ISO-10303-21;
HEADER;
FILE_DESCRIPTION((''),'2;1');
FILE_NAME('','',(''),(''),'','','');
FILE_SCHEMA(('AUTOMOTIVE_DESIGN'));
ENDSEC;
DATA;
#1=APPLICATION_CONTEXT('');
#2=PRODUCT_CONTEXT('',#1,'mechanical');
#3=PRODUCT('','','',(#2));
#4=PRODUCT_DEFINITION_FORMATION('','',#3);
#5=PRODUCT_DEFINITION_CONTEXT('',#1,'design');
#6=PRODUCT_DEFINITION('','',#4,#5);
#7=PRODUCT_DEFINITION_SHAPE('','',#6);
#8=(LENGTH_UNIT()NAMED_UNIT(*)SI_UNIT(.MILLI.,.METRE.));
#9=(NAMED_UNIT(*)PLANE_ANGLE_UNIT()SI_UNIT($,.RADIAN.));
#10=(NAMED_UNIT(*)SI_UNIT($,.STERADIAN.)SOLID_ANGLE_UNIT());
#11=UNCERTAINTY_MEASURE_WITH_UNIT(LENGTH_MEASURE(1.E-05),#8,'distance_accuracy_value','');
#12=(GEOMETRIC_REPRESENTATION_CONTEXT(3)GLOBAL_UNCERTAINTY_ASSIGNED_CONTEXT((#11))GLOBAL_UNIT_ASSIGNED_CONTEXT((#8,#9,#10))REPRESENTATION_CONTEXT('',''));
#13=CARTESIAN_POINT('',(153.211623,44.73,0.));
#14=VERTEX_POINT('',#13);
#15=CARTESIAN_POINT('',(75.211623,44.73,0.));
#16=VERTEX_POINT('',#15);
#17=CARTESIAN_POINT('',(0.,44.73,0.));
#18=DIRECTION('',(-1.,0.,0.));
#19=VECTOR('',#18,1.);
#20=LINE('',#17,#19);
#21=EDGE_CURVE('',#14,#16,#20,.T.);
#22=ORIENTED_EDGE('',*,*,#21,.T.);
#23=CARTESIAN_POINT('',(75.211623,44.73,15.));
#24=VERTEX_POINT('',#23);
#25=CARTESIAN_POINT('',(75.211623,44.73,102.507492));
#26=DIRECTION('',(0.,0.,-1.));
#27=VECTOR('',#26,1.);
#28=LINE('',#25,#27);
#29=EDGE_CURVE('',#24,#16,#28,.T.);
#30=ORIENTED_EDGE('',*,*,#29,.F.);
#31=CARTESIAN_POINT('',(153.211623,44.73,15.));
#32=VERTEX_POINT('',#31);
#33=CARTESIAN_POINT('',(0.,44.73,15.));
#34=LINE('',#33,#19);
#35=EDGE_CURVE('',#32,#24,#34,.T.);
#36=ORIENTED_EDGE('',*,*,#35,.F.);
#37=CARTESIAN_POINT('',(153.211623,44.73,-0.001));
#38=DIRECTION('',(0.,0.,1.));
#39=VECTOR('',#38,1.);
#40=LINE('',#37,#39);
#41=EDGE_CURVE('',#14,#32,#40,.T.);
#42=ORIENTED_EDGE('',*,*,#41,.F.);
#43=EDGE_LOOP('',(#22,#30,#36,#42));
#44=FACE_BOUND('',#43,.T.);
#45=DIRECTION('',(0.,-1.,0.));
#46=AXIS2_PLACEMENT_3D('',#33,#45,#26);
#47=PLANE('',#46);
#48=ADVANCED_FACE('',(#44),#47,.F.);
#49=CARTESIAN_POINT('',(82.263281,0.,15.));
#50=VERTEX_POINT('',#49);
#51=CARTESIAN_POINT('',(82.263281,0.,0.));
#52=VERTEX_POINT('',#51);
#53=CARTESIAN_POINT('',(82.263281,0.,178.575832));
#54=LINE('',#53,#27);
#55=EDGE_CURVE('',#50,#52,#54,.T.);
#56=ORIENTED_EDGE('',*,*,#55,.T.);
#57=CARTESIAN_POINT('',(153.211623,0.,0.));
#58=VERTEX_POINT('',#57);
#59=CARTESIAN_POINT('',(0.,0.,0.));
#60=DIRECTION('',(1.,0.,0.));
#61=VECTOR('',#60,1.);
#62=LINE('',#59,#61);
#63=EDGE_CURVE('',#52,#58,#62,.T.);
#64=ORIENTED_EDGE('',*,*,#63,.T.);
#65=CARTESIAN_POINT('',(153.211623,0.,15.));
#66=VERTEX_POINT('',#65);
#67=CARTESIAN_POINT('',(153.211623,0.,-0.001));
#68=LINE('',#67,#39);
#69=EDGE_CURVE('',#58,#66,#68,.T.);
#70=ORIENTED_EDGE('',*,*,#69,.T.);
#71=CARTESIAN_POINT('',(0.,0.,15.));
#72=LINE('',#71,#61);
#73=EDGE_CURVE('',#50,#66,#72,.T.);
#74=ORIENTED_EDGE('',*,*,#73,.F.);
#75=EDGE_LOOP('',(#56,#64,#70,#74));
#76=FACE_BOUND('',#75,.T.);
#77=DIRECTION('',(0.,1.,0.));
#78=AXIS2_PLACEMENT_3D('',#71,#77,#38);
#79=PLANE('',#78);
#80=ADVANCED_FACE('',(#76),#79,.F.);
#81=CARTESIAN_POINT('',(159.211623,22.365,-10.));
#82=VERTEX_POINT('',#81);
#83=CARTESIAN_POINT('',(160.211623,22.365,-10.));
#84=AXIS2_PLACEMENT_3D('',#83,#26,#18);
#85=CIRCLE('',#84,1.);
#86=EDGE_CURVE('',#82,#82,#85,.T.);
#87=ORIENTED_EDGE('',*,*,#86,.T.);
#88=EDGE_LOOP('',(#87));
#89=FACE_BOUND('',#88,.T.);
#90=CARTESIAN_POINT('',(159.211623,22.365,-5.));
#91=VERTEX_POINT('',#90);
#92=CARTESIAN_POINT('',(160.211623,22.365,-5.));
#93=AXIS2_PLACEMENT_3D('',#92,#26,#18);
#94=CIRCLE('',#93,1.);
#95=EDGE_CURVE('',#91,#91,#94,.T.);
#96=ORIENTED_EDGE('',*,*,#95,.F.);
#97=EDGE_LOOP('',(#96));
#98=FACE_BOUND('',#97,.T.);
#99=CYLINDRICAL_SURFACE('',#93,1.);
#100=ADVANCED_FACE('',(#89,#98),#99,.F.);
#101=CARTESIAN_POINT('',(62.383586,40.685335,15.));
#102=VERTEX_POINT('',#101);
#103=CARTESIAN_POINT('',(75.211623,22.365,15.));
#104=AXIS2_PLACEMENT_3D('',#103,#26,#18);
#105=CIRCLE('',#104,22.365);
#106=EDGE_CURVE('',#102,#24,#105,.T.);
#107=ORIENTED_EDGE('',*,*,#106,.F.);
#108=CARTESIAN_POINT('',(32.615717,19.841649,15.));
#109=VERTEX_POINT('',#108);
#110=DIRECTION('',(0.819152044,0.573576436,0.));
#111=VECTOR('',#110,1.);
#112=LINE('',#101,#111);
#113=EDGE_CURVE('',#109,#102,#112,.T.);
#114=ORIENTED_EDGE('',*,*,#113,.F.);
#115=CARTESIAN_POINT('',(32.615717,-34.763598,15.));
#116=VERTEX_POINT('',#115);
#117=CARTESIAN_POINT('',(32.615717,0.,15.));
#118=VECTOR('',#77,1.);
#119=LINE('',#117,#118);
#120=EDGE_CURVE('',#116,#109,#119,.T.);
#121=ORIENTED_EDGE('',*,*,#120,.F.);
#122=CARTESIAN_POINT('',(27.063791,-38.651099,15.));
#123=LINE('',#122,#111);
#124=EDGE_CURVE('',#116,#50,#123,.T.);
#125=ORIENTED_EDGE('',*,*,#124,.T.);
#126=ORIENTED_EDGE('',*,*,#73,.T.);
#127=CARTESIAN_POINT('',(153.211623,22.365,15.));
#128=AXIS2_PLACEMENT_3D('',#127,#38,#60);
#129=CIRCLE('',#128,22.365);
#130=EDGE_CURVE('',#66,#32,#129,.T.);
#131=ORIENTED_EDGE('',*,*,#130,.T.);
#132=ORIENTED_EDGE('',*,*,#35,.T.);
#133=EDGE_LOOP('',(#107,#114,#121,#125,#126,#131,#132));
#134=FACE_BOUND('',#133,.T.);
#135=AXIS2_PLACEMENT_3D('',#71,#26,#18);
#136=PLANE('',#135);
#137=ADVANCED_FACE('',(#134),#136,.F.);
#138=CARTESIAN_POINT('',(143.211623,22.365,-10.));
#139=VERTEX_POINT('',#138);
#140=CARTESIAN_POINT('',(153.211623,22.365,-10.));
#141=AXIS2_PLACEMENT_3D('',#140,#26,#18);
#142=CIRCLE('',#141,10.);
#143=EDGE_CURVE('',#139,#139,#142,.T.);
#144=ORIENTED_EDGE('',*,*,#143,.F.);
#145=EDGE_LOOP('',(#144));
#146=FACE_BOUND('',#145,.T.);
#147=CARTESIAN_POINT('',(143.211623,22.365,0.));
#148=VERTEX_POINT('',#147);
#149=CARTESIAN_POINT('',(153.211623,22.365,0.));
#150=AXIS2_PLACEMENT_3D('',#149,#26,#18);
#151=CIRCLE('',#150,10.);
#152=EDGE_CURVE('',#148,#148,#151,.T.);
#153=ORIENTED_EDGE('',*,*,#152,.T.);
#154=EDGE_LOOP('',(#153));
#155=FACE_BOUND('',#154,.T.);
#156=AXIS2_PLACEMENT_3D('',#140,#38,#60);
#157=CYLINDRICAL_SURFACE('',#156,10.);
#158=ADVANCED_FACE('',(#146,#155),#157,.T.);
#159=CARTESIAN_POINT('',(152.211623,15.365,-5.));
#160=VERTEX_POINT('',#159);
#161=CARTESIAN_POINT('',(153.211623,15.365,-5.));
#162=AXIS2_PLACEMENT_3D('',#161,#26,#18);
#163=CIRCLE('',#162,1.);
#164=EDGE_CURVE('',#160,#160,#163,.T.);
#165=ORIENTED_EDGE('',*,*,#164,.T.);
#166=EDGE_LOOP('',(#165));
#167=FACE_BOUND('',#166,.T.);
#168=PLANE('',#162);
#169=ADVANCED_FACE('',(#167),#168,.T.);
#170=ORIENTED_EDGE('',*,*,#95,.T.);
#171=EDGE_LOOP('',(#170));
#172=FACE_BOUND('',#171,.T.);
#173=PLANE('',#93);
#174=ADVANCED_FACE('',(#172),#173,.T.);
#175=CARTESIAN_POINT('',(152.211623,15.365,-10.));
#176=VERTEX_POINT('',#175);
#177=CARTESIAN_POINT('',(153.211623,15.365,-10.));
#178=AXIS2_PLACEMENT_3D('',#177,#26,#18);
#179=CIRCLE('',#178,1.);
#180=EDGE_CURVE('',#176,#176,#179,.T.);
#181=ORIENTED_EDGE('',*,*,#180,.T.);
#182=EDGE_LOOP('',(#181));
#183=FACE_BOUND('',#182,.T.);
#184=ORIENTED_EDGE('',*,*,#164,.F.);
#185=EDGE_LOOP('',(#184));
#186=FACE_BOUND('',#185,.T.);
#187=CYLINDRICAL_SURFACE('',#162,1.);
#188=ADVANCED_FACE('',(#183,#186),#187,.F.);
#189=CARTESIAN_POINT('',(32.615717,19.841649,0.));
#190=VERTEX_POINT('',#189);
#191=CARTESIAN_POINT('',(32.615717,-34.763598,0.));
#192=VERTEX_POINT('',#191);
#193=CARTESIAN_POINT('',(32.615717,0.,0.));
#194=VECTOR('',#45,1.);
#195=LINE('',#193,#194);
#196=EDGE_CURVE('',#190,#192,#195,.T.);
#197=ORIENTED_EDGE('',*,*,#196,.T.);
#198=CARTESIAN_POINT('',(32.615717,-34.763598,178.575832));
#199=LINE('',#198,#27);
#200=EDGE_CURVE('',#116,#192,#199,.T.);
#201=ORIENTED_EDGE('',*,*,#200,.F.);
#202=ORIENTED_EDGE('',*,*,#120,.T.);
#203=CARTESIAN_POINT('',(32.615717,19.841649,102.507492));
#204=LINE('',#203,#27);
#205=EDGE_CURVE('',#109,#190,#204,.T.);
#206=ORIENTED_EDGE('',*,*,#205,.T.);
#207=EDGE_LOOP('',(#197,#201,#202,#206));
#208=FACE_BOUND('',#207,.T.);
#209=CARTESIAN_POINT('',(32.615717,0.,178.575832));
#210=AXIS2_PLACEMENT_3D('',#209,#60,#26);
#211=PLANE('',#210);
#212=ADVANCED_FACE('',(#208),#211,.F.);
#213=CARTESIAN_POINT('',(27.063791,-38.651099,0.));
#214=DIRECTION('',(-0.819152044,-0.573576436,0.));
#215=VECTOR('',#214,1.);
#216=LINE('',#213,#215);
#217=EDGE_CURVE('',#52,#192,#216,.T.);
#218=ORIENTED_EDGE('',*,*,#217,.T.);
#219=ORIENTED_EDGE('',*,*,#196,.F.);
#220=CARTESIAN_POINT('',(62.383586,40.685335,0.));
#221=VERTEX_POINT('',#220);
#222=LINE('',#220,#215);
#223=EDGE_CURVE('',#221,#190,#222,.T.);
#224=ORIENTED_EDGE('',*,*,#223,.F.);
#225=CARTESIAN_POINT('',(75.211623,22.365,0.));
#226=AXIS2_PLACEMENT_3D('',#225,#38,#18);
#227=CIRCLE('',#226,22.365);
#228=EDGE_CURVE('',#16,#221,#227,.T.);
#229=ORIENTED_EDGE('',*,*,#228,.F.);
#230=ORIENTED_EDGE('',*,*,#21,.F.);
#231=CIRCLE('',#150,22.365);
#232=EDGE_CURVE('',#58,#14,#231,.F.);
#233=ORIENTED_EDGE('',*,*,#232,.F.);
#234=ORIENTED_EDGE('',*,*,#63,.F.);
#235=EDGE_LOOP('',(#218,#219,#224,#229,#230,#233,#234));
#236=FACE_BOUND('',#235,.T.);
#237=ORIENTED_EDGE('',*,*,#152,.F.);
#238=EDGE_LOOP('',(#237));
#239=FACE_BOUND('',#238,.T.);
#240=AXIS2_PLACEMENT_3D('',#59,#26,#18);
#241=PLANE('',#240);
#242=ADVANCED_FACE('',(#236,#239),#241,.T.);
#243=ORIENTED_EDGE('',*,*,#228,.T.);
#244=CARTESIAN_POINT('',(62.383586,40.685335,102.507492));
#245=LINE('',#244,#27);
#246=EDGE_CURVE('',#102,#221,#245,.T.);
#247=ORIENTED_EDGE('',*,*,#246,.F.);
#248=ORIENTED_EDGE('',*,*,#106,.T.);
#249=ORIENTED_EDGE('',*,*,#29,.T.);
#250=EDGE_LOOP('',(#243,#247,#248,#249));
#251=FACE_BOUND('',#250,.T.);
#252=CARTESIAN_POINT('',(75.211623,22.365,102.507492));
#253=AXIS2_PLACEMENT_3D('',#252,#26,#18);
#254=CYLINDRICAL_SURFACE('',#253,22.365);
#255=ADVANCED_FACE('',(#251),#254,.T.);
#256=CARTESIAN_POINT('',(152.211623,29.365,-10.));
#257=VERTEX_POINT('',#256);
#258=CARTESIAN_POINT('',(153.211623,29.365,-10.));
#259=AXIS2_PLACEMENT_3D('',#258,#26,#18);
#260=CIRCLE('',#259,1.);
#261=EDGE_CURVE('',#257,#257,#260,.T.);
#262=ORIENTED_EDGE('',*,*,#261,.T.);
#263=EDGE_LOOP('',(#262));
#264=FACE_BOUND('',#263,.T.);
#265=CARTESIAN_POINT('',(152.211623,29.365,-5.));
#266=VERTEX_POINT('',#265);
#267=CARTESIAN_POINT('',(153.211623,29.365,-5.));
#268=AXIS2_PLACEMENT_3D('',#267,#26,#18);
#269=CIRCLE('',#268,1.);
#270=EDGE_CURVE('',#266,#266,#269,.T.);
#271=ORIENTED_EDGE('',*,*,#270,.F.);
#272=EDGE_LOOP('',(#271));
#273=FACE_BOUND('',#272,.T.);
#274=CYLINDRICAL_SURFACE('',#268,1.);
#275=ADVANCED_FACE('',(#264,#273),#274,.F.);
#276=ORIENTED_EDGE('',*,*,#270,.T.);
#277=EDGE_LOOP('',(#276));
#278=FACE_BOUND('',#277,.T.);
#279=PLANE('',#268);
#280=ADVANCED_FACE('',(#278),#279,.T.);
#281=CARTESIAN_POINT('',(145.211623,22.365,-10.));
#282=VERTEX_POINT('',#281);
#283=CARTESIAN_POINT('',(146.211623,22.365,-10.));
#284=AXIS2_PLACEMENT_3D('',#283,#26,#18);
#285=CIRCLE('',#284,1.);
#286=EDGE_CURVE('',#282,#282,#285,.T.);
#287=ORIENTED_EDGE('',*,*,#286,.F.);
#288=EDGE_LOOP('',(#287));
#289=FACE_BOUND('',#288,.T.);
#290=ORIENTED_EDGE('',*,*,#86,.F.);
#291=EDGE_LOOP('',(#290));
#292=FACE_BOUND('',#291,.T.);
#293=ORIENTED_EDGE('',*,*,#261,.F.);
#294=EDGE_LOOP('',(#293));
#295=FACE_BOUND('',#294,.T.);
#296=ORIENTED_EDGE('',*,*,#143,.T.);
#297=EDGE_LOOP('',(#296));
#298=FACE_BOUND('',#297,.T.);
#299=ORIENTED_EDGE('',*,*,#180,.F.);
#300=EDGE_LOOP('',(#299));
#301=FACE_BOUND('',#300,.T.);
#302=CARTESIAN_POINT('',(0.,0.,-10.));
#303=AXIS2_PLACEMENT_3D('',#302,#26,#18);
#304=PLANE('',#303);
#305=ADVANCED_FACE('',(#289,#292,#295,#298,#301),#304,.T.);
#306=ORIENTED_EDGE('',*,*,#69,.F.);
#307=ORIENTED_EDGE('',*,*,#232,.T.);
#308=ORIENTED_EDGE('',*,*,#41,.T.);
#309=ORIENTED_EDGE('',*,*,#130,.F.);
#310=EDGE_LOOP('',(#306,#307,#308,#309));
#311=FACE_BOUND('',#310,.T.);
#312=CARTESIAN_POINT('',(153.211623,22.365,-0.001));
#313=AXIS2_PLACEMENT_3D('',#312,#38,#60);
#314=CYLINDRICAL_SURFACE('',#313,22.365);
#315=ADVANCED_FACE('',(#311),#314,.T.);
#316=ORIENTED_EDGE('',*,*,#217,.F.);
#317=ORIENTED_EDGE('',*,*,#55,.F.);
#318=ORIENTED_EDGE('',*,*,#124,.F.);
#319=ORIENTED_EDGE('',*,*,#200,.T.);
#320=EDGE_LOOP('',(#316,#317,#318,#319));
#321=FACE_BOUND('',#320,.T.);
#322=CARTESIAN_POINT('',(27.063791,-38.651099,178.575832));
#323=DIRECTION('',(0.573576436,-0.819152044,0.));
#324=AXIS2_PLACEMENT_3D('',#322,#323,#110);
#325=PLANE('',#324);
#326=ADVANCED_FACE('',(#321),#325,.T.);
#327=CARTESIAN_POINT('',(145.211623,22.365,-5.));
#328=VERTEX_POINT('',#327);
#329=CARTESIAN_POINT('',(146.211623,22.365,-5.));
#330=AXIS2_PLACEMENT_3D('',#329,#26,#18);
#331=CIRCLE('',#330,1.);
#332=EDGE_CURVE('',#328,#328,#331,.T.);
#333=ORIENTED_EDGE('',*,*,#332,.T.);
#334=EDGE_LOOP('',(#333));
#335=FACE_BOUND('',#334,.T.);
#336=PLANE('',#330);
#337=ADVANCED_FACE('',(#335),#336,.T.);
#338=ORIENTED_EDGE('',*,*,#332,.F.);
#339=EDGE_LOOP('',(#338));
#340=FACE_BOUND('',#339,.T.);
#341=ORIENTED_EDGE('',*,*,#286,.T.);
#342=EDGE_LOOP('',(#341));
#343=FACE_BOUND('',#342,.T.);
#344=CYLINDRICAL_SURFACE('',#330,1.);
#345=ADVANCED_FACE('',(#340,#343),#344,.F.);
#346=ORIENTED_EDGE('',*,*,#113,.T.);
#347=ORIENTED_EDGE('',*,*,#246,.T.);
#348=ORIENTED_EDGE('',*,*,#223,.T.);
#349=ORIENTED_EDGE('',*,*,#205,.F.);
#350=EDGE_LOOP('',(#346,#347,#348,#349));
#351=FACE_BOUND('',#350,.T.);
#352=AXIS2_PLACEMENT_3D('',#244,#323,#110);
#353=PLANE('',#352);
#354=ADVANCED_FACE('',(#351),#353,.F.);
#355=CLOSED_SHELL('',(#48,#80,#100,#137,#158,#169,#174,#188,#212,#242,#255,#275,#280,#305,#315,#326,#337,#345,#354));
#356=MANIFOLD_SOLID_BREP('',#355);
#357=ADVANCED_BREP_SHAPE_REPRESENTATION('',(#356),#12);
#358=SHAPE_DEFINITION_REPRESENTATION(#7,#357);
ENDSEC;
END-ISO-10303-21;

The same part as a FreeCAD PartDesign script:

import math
import FreeCAD as App
import Part
import Sketcher
from FreeCAD import Vector
Q = App.Units.Quantity

doc = App.newDocument("Part")
params = doc.addObject("Spreadsheet::Sheet", "Params")
for row, (alias, value) in enumerate([
    ("sketch1_width", "300 mm"),
    ("sketch1_height", "44.73 mm"),
    ("pad1_length", "15 mm"),
    ("sketch3_diameter", "20 mm"),
    ("pad2_length", "10 mm"),
    ("sketch4_diameter", "2 mm"),
    ("pocket2_length", "5 mm"),
    ("sketch5_diameter", "20 mm"),
    ("sketch5_width", "78 mm"),
    ("pad3_length", "15 mm"),
    ("sketch6_height", "44.73 mm"),
    ("pocket3_length", "15 mm"),
], start=1):
    params.set(f"A{row}", alias)
    params.set(f"B{row}", "=" + value)
    params.setAlias(f"B{row}", alias)

body = doc.addObject("PartDesign::Body", "Body")

# Sketch on XY plane
sketch1 = body.newObject("Sketcher::SketchObject", "Sketch")
sketch1.AttachmentSupport = (doc.getObject("XY_Plane"), [""])
sketch1.MapMode = "FlatFace"
sketch1.addGeometry([
    Part.LineSegment(Vector(0, 45, 0), Vector(0, 0, 0)),
    Part.LineSegment(Vector(0, 0, 0), Vector(300, 0, 0)),
    Part.LineSegment(Vector(300, 0, 0), Vector(300, 45, 0)),
    Part.LineSegment(Vector(300, 45, 0), Vector(0, 45, 0)),
], False)
sketch1.addConstraint([
    Sketcher.Constraint("Coincident", 0, 2, 1, 1),
    Sketcher.Constraint("Coincident", 1, 2, 2, 1),
    Sketcher.Constraint("Coincident", 2, 2, 3, 1),
    Sketcher.Constraint("Coincident", 3, 2, 0, 1),
    Sketcher.Constraint("Vertical", 0),
    Sketcher.Constraint("Horizontal", 1),
    Sketcher.Constraint("Vertical", 2),
    Sketcher.Constraint("Horizontal", 3),
    Sketcher.Constraint("Coincident", 0, 2, -1, 1),
    Sketcher.Constraint("DistanceX", 1, 1, 1, 2, Q("300 mm")),
    Sketcher.Constraint("DistanceY", 0, 2, 0, 1, Q("44.73 mm")),
])
sketch1.setExpression("Constraints[9]", "Params.sketch1_width")
sketch1.setExpression("Constraints[10]", "Params.sketch1_height")
pad1 = body.newObject("PartDesign::Pad", "Pad")
pad1.Profile = sketch1
pad1.setExpression("Length", "Params.pad1_length")

# Sketch on XY plane
sketch2 = body.newObject("Sketcher::SketchObject", "Sketch001")
sketch2.AttachmentSupport = (doc.getObject("XY_Plane"), [""])
sketch2.MapMode = "FlatFace"
sketch2.AttachmentOffset = App.Placement(Vector(0, 0, 15), App.Rotation())
sketch2.addGeometry([
    Part.LineSegment(Vector(300, 45, 0), Vector(153, 45, 0)),
    Part.ArcOfCircle(Part.Circle(Vector(153, 22, 0), Vector(0, 0, 1), 22), math.radians(-90), math.radians(90)),
    Part.LineSegment(Vector(153, 0, 0), Vector(300, 0, 0)),
    Part.LineSegment(Vector(300, 0, 0), Vector(300, 45, 0)),
], False)
sketch2.addConstraint([
    Sketcher.Constraint("Tangent", 0, 2, 1, 2),
    Sketcher.Constraint("Tangent", 1, 1, 2, 1),
    Sketcher.Constraint("Coincident", 2, 2, 3, 1),
    Sketcher.Constraint("Coincident", 3, 2, 0, 1),
    Sketcher.Constraint("Horizontal", 0),
    Sketcher.Constraint("Horizontal", 2),
    Sketcher.Constraint("Vertical", 3),
    Sketcher.Constraint("PointOnObject", 1, 1, -1),
    Sketcher.Constraint("DistanceX", -1, 1, 2, 2, Q("300 mm")),
    Sketcher.Constraint("Radius", 1, Q("22.365 mm")),
    Sketcher.Constraint("DistanceX", 0, 2, 0, 1, Q("146.788377 mm")),
])
pocket1 = body.newObject("PartDesign::Pocket", "Pocket")
pocket1.Profile = sketch2
pocket1.Type = "UpToFirst"

# Sketch on XY plane
sketch3 = body.newObject("Sketcher::SketchObject", "Sketch002")
sketch3.AttachmentSupport = (doc.getObject("XY_Plane"), [""])
sketch3.MapMode = "FlatFace"
sketch3.addGeometry(Part.Circle(Vector(153, 22, 0), Vector(0, 0, 1), 10), False)
sketch3.addConstraint([
    Sketcher.Constraint("Diameter", 0, Q("20 mm")),
    Sketcher.Constraint("DistanceY", -1, 1, 0, 3, Q("22.365 mm")),
    Sketcher.Constraint("DistanceX", -1, 1, 0, 3, Q("153.211623 mm")),
])
sketch3.setExpression("Constraints[0]", "Params.sketch3_diameter")
pad2 = body.newObject("PartDesign::Pad", "Pad001")
pad2.Profile = sketch3
pad2.setExpression("Length", "Params.pad2_length")
pad2.Reversed = True

# Sketch on XY plane
sketch4 = body.newObject("Sketcher::SketchObject", "Sketch003")
sketch4.AttachmentSupport = (doc.getObject("XY_Plane"), [""])
sketch4.MapMode = "FlatFace"
sketch4.AttachmentOffset = App.Placement(Vector(0, 0, -10), App.Rotation())
sketch4.addGeometry([
    Part.Circle(Vector(153.2, 29.4, 0), Vector(0, 0, 1), 1),
    Part.Circle(Vector(146.2, 22.4, 0), Vector(0, 0, 1), 1),
    Part.Circle(Vector(153.2, 15.4, 0), Vector(0, 0, 1), 1),
    Part.Circle(Vector(160.2, 22.4, 0), Vector(0, 0, 1), 1),
], False)
sketch4.addConstraint([
    Sketcher.Constraint("Equal", 0, 1),
    Sketcher.Constraint("Equal", 1, 2),
    Sketcher.Constraint("Equal", 2, 3),
    Sketcher.Constraint("Horizontal", 1, 3, 3, 3),
    Sketcher.Constraint("Vertical", 0, 3, 2, 3),
    Sketcher.Constraint("Diameter", 0, Q("2 mm")),
    Sketcher.Constraint("DistanceX", 1, 3, 0, 3, Q("7 mm")),
    Sketcher.Constraint("DistanceY", 1, 3, 0, 3, Q("7 mm")),
    Sketcher.Constraint("DistanceY", 2, 3, 1, 3, Q("7 mm")),
    Sketcher.Constraint("DistanceX", 2, 3, 3, 3, Q("7 mm")),
    Sketcher.Constraint("DistanceY", -1, 1, 0, 3, Q("29.365 mm")),
    Sketcher.Constraint("DistanceX", -1, 1, 0, 3, Q("153.211623 mm")),
])
sketch4.setExpression("Constraints[5]", "Params.sketch4_diameter")
pocket2 = body.newObject("PartDesign::Pocket", "Pocket001")
pocket2.Profile = sketch4
pocket2.setExpression("Length", "Params.pocket2_length")
pocket2.Reversed = True

# Sketch on XY plane
sketch5 = body.newObject("Sketcher::SketchObject", "Sketch004")
sketch5.AttachmentSupport = (doc.getObject("XY_Plane"), [""])
sketch5.MapMode = "FlatFace"
sketch5.AttachmentOffset = App.Placement(Vector(0, 0, 15), App.Rotation())
sketch5.addGeometry([
    Part.LineSegment(Vector(62, 41, 0), Vector(33, 20, 0)),  # 0
    Part.LineSegment(Vector(33, 20, 0), Vector(33, -35, 0)),  # 1
    Part.LineSegment(Vector(33, -35, 0), Vector(82, 0, 0)),  # 2
    Part.LineSegment(Vector(82, 0, 0), Vector(153, 0, 0)),  # 3
    Part.ArcOfCircle(Part.Circle(Vector(153, 22, 0), Vector(0, 0, 1), 22), math.radians(-90), math.radians(0)),  # 4
    Part.ArcOfCircle(Part.Circle(Vector(153, 22, 0), Vector(0, 0, 1), 22), math.radians(0), math.radians(90)),  # 5
    Part.LineSegment(Vector(153, 45, 0), Vector(75, 45, 0)),  # 6
    Part.ArcOfCircle(Part.Circle(Vector(75, 22, 0), Vector(0, 0, 1), 22), math.radians(90), math.radians(125)),  # 7
    Part.Circle(Vector(153, 22, 0), Vector(0, 0, 1), 10),  # 8
], False)
sketch5.addConstraint([
    Sketcher.Constraint("Coincident", 0, 2, 1, 1),
    Sketcher.Constraint("Coincident", 1, 2, 2, 1),
    Sketcher.Constraint("Coincident", 2, 2, 3, 1),
    Sketcher.Constraint("Tangent", 3, 2, 4, 1),
    Sketcher.Constraint("Tangent", 4, 2, 5, 1),
    Sketcher.Constraint("Tangent", 5, 2, 6, 1),
    Sketcher.Constraint("Tangent", 6, 2, 7, 1),
    Sketcher.Constraint("Tangent", 7, 2, 0, 1),
    Sketcher.Constraint("Vertical", 1),
    Sketcher.Constraint("Horizontal", 3),
    Sketcher.Constraint("Horizontal", 6),
    Sketcher.Constraint("Coincident", 8, 3, 4, 3),
    Sketcher.Constraint("Equal", 4, 5),
    Sketcher.Constraint("Equal", 5, 7),
    Sketcher.Constraint("PointOnObject", 2, 2, -1),
    Sketcher.Constraint("Parallel", 0, 2),
    Sketcher.Constraint("Horizontal", 8, 3, 4, 2),
    Sketcher.Constraint("Diameter", 8, Q("20 mm")),
    Sketcher.Constraint("DistanceX", 6, 2, 6, 1, Q("78 mm")),
    Sketcher.Constraint("Angle", 0, Q("-145 deg")),
    Sketcher.Constraint("Radius", 4, Q("22.365 mm")),
    Sketcher.Constraint("DistanceY", 1, 2, -1, 1, Q("34.763598 mm")),
    Sketcher.Constraint("Distance", 0, Q("36.339858 mm")),
    Sketcher.Constraint("DistanceX", -1, 1, 2, 2, Q("82.263281 mm")),
])
sketch5.setExpression("Constraints[17]", "Params.sketch5_diameter")
sketch5.setExpression("Constraints[18]", "Params.sketch5_width")
pad3 = body.newObject("PartDesign::Pad", "Pad002")
pad3.Profile = sketch5
pad3.setExpression("Length", "Params.pad3_length")
pad3.Reversed = True

# Sketch on XY plane
sketch6 = body.newObject("Sketcher::SketchObject", "Sketch005")
sketch6.AttachmentSupport = (doc.getObject("XY_Plane"), [""])
sketch6.MapMode = "FlatFace"
sketch6.addGeometry([
    Part.LineSegment(Vector(33, 20, 0), Vector(33, 0, 0)),  # 0
    Part.LineSegment(Vector(33, 0, 0), Vector(0, 0, 0)),  # 1
    Part.LineSegment(Vector(0, 0, 0), Vector(0, 45, 0)),  # 2
    Part.LineSegment(Vector(0, 45, 0), Vector(75, 45, 0)),  # 3
    Part.ArcOfCircle(Part.Circle(Vector(75, 22, 0), Vector(0, 0, 1), 22), math.radians(90), math.radians(125)),  # 4
    Part.LineSegment(Vector(62, 41, 0), Vector(33, 20, 0)),  # 5
], False)
sketch6.addConstraint([
    Sketcher.Constraint("Coincident", 0, 2, 1, 1),
    Sketcher.Constraint("Coincident", 1, 2, 2, 1),
    Sketcher.Constraint("Coincident", 2, 2, 3, 1),
    Sketcher.Constraint("Tangent", 3, 2, 4, 1),
    Sketcher.Constraint("Tangent", 4, 2, 5, 1),
    Sketcher.Constraint("Coincident", 5, 2, 0, 1),
    Sketcher.Constraint("Vertical", 0),
    Sketcher.Constraint("Horizontal", 1),
    Sketcher.Constraint("Vertical", 2),
    Sketcher.Constraint("Horizontal", 3),
    Sketcher.Constraint("Coincident", 1, 2, -1, 1),
    Sketcher.Constraint("Angle", 5, Q("-145 deg")),
    Sketcher.Constraint("Radius", 4, Q("22.365 mm")),
    Sketcher.Constraint("DistanceY", 2, 1, 2, 2, Q("44.73 mm")),
    Sketcher.Constraint("DistanceY", 0, 2, 0, 1, Q("19.841649 mm")),
    Sketcher.Constraint("DistanceX", 1, 2, 1, 1, Q("32.615717 mm")),
])
sketch6.setExpression("Constraints[13]", "Params.sketch6_height")
pocket3 = body.newObject("PartDesign::Pocket", "Pocket002")
pocket3.Profile = sketch6
pocket3.setExpression("Length", "Params.pocket3_length")
pocket3.Reversed = True

doc.recompute()
